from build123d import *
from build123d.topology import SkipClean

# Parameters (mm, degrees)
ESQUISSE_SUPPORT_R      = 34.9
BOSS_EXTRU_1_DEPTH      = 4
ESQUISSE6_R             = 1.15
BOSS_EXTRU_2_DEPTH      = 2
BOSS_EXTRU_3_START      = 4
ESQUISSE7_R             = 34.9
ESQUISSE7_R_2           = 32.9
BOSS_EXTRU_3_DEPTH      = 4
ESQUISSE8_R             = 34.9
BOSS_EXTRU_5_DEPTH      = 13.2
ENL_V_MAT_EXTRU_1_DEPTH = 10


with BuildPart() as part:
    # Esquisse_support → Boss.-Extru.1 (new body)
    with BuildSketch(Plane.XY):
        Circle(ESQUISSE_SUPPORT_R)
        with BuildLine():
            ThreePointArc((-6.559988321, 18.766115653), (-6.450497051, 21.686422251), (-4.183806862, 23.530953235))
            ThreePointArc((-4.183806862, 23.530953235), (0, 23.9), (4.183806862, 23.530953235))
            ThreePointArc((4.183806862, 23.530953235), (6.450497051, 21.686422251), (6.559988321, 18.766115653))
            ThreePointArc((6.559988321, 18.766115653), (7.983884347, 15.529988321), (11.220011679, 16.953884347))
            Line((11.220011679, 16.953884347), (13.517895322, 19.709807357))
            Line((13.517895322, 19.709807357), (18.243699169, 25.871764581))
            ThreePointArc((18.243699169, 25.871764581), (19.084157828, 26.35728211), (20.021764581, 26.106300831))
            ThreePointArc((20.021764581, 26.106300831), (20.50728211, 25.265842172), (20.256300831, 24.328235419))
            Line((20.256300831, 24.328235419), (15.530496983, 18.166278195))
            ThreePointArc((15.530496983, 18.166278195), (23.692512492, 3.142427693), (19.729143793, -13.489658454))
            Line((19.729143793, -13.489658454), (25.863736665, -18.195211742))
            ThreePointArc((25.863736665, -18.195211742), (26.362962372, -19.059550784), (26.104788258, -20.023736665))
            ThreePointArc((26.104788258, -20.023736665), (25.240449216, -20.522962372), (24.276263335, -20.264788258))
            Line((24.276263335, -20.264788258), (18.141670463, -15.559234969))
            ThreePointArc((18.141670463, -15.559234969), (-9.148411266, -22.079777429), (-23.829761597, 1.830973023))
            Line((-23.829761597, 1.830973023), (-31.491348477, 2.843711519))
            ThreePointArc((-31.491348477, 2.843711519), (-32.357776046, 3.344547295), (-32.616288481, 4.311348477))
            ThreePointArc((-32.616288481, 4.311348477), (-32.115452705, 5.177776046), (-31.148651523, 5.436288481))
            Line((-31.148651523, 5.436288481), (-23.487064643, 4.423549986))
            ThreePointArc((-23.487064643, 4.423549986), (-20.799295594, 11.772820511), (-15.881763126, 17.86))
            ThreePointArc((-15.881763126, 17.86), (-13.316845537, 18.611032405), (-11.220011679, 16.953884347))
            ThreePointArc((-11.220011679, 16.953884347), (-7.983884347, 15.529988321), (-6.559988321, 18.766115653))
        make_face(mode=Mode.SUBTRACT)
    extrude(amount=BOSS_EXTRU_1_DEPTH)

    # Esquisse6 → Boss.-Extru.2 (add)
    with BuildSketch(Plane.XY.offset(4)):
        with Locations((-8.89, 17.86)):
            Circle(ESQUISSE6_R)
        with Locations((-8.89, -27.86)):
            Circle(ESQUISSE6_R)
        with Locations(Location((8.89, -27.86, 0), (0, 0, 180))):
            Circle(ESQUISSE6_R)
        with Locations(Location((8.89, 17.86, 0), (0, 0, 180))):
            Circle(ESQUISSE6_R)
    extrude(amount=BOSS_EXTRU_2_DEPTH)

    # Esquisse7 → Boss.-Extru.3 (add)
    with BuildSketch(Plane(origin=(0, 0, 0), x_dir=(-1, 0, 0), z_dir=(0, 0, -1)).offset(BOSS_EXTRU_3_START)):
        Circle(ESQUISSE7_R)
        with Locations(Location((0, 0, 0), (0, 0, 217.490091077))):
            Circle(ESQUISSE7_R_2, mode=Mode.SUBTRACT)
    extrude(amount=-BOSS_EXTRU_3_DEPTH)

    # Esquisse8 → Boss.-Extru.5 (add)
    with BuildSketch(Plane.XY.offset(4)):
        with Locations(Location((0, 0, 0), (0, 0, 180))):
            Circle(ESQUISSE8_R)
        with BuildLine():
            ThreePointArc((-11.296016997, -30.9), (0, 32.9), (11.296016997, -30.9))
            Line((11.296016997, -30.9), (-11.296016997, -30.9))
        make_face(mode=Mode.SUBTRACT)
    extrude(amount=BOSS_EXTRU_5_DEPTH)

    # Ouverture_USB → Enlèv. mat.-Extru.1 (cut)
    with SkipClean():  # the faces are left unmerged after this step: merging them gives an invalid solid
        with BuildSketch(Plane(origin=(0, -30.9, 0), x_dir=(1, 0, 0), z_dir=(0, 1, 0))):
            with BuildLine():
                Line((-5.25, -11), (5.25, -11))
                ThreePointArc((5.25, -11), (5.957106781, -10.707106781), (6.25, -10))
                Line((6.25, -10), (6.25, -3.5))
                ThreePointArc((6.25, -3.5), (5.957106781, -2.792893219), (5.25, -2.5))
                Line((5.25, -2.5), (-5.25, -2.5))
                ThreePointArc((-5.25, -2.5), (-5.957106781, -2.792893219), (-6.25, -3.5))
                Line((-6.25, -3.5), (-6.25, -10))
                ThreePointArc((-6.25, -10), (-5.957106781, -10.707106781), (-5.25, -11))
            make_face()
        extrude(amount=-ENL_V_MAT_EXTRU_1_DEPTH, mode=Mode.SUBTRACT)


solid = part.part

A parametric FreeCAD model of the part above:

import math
import FreeCAD as App
import Part
import Sketcher

V = App.Vector

doc = App.newDocument("Part")
body = doc.addObject("PartDesign::Body", "Body")

# Sketch on XY plane
sketch1 = doc.addObject("Sketcher::SketchObject", "Sketch")
body.addObject(sketch1)
sketch1.AttachmentSupport = (doc.XY_Plane, [""])
sketch1.MapMode = "FlatFace"
sketch1.addGeometry([
    Part.Circle(V(0, 0, 0), V(0, 0, 1), 34.9),  # 0
    Part.ArcOfCircle(Part.Circle(V(-8.9, 17.9, 0), V(0, 0, 1), 2.5), math.radians(-159), math.radians(21)),  # 1
    Part.ArcOfCircle(Part.Circle(V(-3.3, 20.1, 0), V(0, 0, 1), 3.5), math.radians(105), math.radians(202)),  # 2
    Part.ArcOfCircle(Part.Circle(V(0, 0, 0), V(0, 0, 1), 23.9), math.radians(80), math.radians(100)),  # 3
    Part.ArcOfCircle(Part.Circle(V(3.3, 20.1, 0), V(0, 0, 1), 3.5), math.radians(-22), math.radians(75)),  # 4
    Part.ArcOfCircle(Part.Circle(V(8.9, 17.9, 0), V(0, 0, 1), 2.5), math.radians(159), math.radians(339)),  # 5
    Part.LineSegment(V(11.2, 17, 0), V(13.5, 19.7, 0)),  # 6
    Part.LineSegment(V(13.5, 19.7, 0), V(18.2, 25.9, 0)),  # 7
    Part.ArcOfCircle(Part.Circle(V(19.2, 25.1, 0), V(0, 0, 1), 1.3), math.radians(53), math.radians(143)),  # 8
    Part.ArcOfCircle(Part.Circle(V(19.2, 25.1, 0), V(0, 0, 1), 1.3), math.radians(-37), math.radians(53)),  # 9
    Part.LineSegment(V(20.3, 24.3, 0), V(15.5, 18.2, 0)),  # 10
    Part.ArcOfCircle(Part.Circle(V(0, 0, 0), V(0, 0, 1), 23.9), math.radians(-34), math.radians(49)),  # 11
    Part.LineSegment(V(19.7, -13.5, 0), V(25.9, -18.2, 0)),  # 12
    Part.ArcOfCircle(Part.Circle(V(25.1, -19.2, 0), V(0, 0, 1), 1.3), math.radians(-37), math.radians(53)),  # 13
    Part.ArcOfCircle(Part.Circle(V(25.1, -19.2, 0), V(0, 0, 1), 1.3), math.radians(-127), math.radians(-37)),  # 14
    Part.LineSegment(V(24.3, -20.3, 0), V(18.1, -15.6, 0)),  # 15
    Part.ArcOfCircle(Part.Circle(V(0, 0, 0), V(0, 0, 1), 23.9), math.radians(176), math.radians(319)),  # 16
    Part.LineSegment(V(-23.8, 1.8, 0), V(-31.5, 2.8, 0)),  # 17
    Part.ArcOfCircle(Part.Circle(V(-31.3, 4.1, 0), V(0, 0, 1), 1.3), math.radians(172), math.radians(262)),  # 18
    Part.ArcOfCircle(Part.Circle(V(-31.3, 4.1, 0), V(0, 0, 1), 1.3), math.radians(82), math.radians(172)),  # 19
    Part.LineSegment(V(-31.1, 5.4, 0), V(-23.5, 4.4, 0)),  # 20
    Part.ArcOfCircle(Part.Circle(V(0, 0, 0), V(0, 0, 1), 23.9), math.radians(132), math.radians(169)),  # 21
    Part.ArcOfCircle(Part.Circle(V(-13.9, 15.8, 0), V(0, 0, 1), 2.9), math.radians(24), math.radians(134)),  # 22
], False)
sketch1.addConstraint([
    Sketcher.Constraint("Coincident", 1, 2, 2, 2),
    Sketcher.Constraint("Coincident", 2, 1, 3, 2),
    Sketcher.Constraint("Coincident", 3, 1, 4, 2),
    Sketcher.Constraint("Coincident", 4, 1, 5, 1),
    Sketcher.Constraint("Coincident", 5, 2, 6, 1),
    Sketcher.Constraint("Coincident", 6, 2, 7, 1),
    Sketcher.Constraint("Tangent", 7, 2, 8, 2),
    Sketcher.Constraint("Tangent", 8, 1, 9, 2),
    Sketcher.Constraint("Tangent", 9, 1, 10, 1),
    Sketcher.Constraint("Coincident", 10, 2, 11, 2),
    Sketcher.Constraint("Coincident", 11, 1, 12, 1),
    Sketcher.Constraint("Tangent", 12, 2, 13, 2),
    Sketcher.Constraint("Tangent", 13, 1, 14, 2),
    Sketcher.Constraint("Tangent", 14, 1, 15, 1),
    Sketcher.Constraint("Coincident", 15, 2, 16, 2),
    Sketcher.Constraint("Coincident", 16, 1, 17, 1),
    Sketcher.Constraint("Tangent", 17, 2, 18, 2),
    Sketcher.Constraint("Tangent", 18, 1, 19, 2),
    Sketcher.Constraint("Tangent", 19, 1, 20, 1),
    Sketcher.Constraint("Coincident", 20, 2, 21, 2),
    Sketcher.Constraint("Coincident", 21, 1, 22, 2),
    Sketcher.Constraint("Coincident", 22, 1, 1, 1),
    Sketcher.Constraint("Coincident", 0, 3, -1, 1),
    Sketcher.Constraint("Coincident", 3, 3, -1, 1),
    Sketcher.Constraint("Coincident", 11, 3, -1, 1),
    Sketcher.Constraint("Coincident", 16, 3, -1, 1),
    Sketcher.Constraint("Coincident", 21, 3, -1, 1),
    Sketcher.Constraint("Equal", 2, 4),
    Sketcher.Constraint("Equal", 1, 5),
    Sketcher.Constraint("Equal", 8, 9),
    Sketcher.Constraint("Equal", 3, 11),
    Sketcher.Constraint("Equal", 13, 14),
    Sketcher.Constraint("Equal", 11, 16),
    Sketcher.Constraint("Equal", 18, 19),
    Sketcher.Constraint("Equal", 16, 21),
    Sketcher.Constraint("Symmetric", 2, 3, 4, 3, -2),
    Sketcher.Constraint("Symmetric", 1, 3, 5, 3, -2),
    Sketcher.Constraint("Parallel", 7, 10),
    Sketcher.Constraint("Parallel", 12, 15),
    Sketcher.Constraint("Parallel", 17, 20),
    Sketcher.Constraint("Horizontal", 5, 3, 21, 1),
    Sketcher.Constraint("Horizontal", 5, 2, 22, 1),
    Sketcher.Constraint("Equal", 7, 10),
    Sketcher.Constraint("Equal", 12, 15),
    Sketcher.Constraint("Equal", 17, 20),
    Sketcher.Constraint("Diameter", 0, 69.8),
    Sketcher.Constraint("Radius", 1, 2.5),
    Sketcher.Constraint("Radius", 3, 23.9),
    Sketcher.Constraint("DistanceY", -1, 1, 8, 3, 25.1),
    Sketcher.Constraint("DistanceX", 1, 3, -1, 1, 8.89),
    Sketcher.Constraint("DistanceY", -1, 1, 1, 3, 17.86),
    Sketcher.Constraint("DistanceX", -1, 1, 8, 3, 19.25),
    Sketcher.Constraint("DistanceX", -1, 1, 13, 3, 25.07),
    Sketcher.Constraint("DistanceY", 13, 3, -1, 1, 19.23),
    Sketcher.Constraint("DistanceX", 18, 3, -1, 1, 31.32),
    Sketcher.Constraint("DistanceY", -1, 1, 18, 3, 4.14),
    Sketcher.Constraint("Radius", 2, 3.542819),
    Sketcher.Constraint("Radius", 13, 1.304149),
    Sketcher.Constraint("Radius", 8, 1.268173),
    Sketcher.Constraint("Radius", 18, 1.307564),
    Sketcher.Constraint("Radius", 22, 2.911587),
    Sketcher.Constraint("DistanceX", -1, 1, 7, 2, 18.243699),
    Sketcher.Constraint("DistanceY", -1, 1, 8, 1, 26.106301),
    Sketcher.Constraint("Distance", 6, 3.588228),
    Sketcher.Constraint("DistanceX", 1, 2, -1, 1, 6.559988),
    Sketcher.Constraint("DistanceX", -1, 1, 13, 1, 26.104788),
    Sketcher.Constraint("DistanceX", 18, 1, -1, 1, 32.616288),
    Sketcher.Constraint("DistanceX", 2, 3, 4, 3, 6.56009),
])
pad1 = doc.addObject("PartDesign::Pad", "Pad")
body.addObject(pad1)
pad1.Profile = sketch1
pad1.Length = 4

# Sketch on XY plane
sketch2 = doc.addObject("Sketcher::SketchObject", "Sketch001")
body.addObject(sketch2)
sketch2.AttachmentSupport = (doc.XY_Plane, [""])
sketch2.MapMode = "FlatFace"
sketch2.AttachmentOffset = App.Placement(V(0, 0, 4), App.Rotation())
sketch2.addGeometry([
    Part.Circle(V(-8.9, 17.9, 0), V(0, 0, 1), 1.1),
    Part.Circle(V(-8.9, -27.9, 0), V(0, 0, 1), 1.1),
    Part.Circle(V(8.9, -27.9, 0), V(0, 0, 1), 1.1),
    Part.Circle(V(8.9, 17.9, 0), V(0, 0, 1), 1.1),
], False)
sketch2.addConstraint([
    Sketcher.Constraint("Equal", 0, 1),
    Sketcher.Constraint("Equal", 1, 2),
    Sketcher.Constraint("Equal", 2, 3),
    Sketcher.Constraint("Symmetric", 1, 3, 2, 3, -2),
    Sketcher.Constraint("Symmetric", 0, 3, 3, 3, -2),
    Sketcher.Constraint("Vertical", 0, 3, 1, 3),
    Sketcher.Constraint("Diameter", 0, 2.3),
    Sketcher.Constraint("DistanceX", 0, 3, -1, 1, 8.89),
    Sketcher.Constraint("DistanceY", -1, 1, 0, 3, 17.86),
    Sketcher.Constraint("DistanceY", 1, 3, -1, 1, 27.86),
])
pad2 = doc.addObject("PartDesign::Pad", "Pad001")
body.addObject(pad2)
pad2.Profile = sketch2
pad2.Length = 2

# Sketch on XY plane
sketch3 = doc.addObject("Sketcher::SketchObject", "Sketch002")
body.addObject(sketch3)
sketch3.AttachmentSupport = (doc.XY_Plane, [""])
sketch3.MapMode = "FlatFace"
sketch3.AttachmentOffset = App.Placement(V(0, 0, -4), App.Rotation())
sketch3.addGeometry([
    Part.Circle(V(0, 0, 0), V(0, 0, 1), 35),
    Part.Circle(V(0, 0, 0), V(0, 0, 1), 33),
], False)
sketch3.addConstraint([
    Sketcher.Constraint("Coincident", 0, 3, -1, 1),
    Sketcher.Constraint("Coincident", 1, 3, -1, 1),
    Sketcher.Constraint("Diameter", 0, 69.8),
    Sketcher.Constraint("Diameter", 1, 65.8),
])
pad3 = doc.addObject("PartDesign::Pad", "Pad002")
body.addObject(pad3)
pad3.Profile = sketch3
pad3.Length = 4

# Sketch on XY plane
sketch4 = doc.addObject("Sketcher::SketchObject", "Sketch003")
body.addObject(sketch4)
sketch4.AttachmentSupport = (doc.XY_Plane, [""])
sketch4.MapMode = "FlatFace"
sketch4.AttachmentOffset = App.Placement(V(0, 0, 4), App.Rotation())
sketch4.addGeometry([
    Part.Circle(V(0, 0, 0), V(0, 0, 1), 35),
    Part.LineSegment(V(11, -31, 0), V(-11, -31, 0)),
    Part.ArcOfCircle(Part.Circle(V(0, 0, 0), V(0, 0, 1), 33), math.radians(-70), math.radians(250)),
], False)
sketch4.addConstraint([
    Sketcher.Constraint("Coincident", 1, 1, 2, 1),
    Sketcher.Constraint("Coincident", 2, 2, 1, 2),
    Sketcher.Constraint("Horizontal", 1),
    Sketcher.Constraint("Coincident", 0, 3, -1, 1),
    Sketcher.Constraint("Coincident", 2, 3, -1, 1),
    Sketcher.Constraint("Diameter", 0, 69.8),
    Sketcher.Constraint("Radius", 2, 32.9),
    Sketcher.Constraint("DistanceY", 1, 1, -1, 1, 30.9),
])
pad4 = doc.addObject("PartDesign::Pad", "Pad003")
body.addObject(pad4)
pad4.Profile = sketch4
pad4.Length = 13.2

# Sketch on XZ plane
sketch5 = doc.addObject("Sketcher::SketchObject", "Sketch004")
body.addObject(sketch5)
sketch5.AttachmentSupport = (doc.XZ_Plane, [""])
sketch5.MapMode = "FlatFace"
sketch5.AttachmentOffset = App.Placement(V(0, 0, 30.9), App.Rotation())
sketch5.addGeometry([
    Part.LineSegment(V(-5.2, 11, 0), V(5.2, 11, 0)),  # 0
    Part.ArcOfCircle(Part.Circle(V(5.2, 10, 0), V(0, 0, 1), 1), math.radians(0), math.radians(90)),  # 1
    Part.LineSegment(V(6.2, 10, 0), V(6.2, 3.5, 0)),  # 2
    Part.ArcOfCircle(Part.Circle(V(5.2, 3.5, 0), V(0, 0, 1), 1), math.radians(-90), math.radians(0)),  # 3
    Part.LineSegment(V(5.2, 2.5, 0), V(-5.2, 2.5, 0)),  # 4
    Part.ArcOfCircle(Part.Circle(V(-5.2, 3.5, 0), V(0, 0, 1), 1), math.radians(-180), math.radians(-90)),  # 5
    Part.LineSegment(V(-6.2, 3.5, 0), V(-6.2, 10, 0)),  # 6
    Part.ArcOfCircle(Part.Circle(V(-5.2, 10, 0), V(0, 0, 1), 1), math.radians(90), math.radians(180)),  # 7
], False)
sketch5.addConstraint([
    Sketcher.Constraint("Tangent", 0, 2, 1, 2),
    Sketcher.Constraint("Tangent", 1, 1, 2, 1),
    Sketcher.Constraint("Tangent", 2, 2, 3, 2),
    Sketcher.Constraint("Tangent", 3, 1, 4, 1),
    Sketcher.Constraint("Tangent", 4, 2, 5, 2),
    Sketcher.Constraint("Tangent", 5, 1, 6, 1),
    Sketcher.Constraint("Tangent", 6, 2, 7, 2),
    Sketcher.Constraint("Tangent", 7, 1, 0, 1),
    Sketcher.Constraint("Horizontal", 0),
    Sketcher.Constraint("Vertical", 2),
    Sketcher.Constraint("Horizontal", 4),
    Sketcher.Constraint("Vertical", 6),
    Sketcher.Constraint("Equal", 1, 3),
    Sketcher.Constraint("Equal", 3, 5),
    Sketcher.Constraint("Equal", 5, 7),
    Sketcher.Constraint("Radius", 1, 1.0),
    Sketcher.Constraint("DistanceX", 0, 1, 0, 2, 10.5),
    Sketcher.Constraint("DistanceY", 2, 2, 2, 1, 6.5),
    Sketcher.Constraint("DistanceY", -1, 1, 1, 3, 10.0),
    Sketcher.Constraint("DistanceX", -1, 1, 1, 3, 5.25),
])
pocket1 = doc.addObject("PartDesign::Pocket", "Pocket")
body.addObject(pocket1)
pocket1.Profile = sketch5
pocket1.Length = 10
pocket1.Reversed = True

doc.recompute()
